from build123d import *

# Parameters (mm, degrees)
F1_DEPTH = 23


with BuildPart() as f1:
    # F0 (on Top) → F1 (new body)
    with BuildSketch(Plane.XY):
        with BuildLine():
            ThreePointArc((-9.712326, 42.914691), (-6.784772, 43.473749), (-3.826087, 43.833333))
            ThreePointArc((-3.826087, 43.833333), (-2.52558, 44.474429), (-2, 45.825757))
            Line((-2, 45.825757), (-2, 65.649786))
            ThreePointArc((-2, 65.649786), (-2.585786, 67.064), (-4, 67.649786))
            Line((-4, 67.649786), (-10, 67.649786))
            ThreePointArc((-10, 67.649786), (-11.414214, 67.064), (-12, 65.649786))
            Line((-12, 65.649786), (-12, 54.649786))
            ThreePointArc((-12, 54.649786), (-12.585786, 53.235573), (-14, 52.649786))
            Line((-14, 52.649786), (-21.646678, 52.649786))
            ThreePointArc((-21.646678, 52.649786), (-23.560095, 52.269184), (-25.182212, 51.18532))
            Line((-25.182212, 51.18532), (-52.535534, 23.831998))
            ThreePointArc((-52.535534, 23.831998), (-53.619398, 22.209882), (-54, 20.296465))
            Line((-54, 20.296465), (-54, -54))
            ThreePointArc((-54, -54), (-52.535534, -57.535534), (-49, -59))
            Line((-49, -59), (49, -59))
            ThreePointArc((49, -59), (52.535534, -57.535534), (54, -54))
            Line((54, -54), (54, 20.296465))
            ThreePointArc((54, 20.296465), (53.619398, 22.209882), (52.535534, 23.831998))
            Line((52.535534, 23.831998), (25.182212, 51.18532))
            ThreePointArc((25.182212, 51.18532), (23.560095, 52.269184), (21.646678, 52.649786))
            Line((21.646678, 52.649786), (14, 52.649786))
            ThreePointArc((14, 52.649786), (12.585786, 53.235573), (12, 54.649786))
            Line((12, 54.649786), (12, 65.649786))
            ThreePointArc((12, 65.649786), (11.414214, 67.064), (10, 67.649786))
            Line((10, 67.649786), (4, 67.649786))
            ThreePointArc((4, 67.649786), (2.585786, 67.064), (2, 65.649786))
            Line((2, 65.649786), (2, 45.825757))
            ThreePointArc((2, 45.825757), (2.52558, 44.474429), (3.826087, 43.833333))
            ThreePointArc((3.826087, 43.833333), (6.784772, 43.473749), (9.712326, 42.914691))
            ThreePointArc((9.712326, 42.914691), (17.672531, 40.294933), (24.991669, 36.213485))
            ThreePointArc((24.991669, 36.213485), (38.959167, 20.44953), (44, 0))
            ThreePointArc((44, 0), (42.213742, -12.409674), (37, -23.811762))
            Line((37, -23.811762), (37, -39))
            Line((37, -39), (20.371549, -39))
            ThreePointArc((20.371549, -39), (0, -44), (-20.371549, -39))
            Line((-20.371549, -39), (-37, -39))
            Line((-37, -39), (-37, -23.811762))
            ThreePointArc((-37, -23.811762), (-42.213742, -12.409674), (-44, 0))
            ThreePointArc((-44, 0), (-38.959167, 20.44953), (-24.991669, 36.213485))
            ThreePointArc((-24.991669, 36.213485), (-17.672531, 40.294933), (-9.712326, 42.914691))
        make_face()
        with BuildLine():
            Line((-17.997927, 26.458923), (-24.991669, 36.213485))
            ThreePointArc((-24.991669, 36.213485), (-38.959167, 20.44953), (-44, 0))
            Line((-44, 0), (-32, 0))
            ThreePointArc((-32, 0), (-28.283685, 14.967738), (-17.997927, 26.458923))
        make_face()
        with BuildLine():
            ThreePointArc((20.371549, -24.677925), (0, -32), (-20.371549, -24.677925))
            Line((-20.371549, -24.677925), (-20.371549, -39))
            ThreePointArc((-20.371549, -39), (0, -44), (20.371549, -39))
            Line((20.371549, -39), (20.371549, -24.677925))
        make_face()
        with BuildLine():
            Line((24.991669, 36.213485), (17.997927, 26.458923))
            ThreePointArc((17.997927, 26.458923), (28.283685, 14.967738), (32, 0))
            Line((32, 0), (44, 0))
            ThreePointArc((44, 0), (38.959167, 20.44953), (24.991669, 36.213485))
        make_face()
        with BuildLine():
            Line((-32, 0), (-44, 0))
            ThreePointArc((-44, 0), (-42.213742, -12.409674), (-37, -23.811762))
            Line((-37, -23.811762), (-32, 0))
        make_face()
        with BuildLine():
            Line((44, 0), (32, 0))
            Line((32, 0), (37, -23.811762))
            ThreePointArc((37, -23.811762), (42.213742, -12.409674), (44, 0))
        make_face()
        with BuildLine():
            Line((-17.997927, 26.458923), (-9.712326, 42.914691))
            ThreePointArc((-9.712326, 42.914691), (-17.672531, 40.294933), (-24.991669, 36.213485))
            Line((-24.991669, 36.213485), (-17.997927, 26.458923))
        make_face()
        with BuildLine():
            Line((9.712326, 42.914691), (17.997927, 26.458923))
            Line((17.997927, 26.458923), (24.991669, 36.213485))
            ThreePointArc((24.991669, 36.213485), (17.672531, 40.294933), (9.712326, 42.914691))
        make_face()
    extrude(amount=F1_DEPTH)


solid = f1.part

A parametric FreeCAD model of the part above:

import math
import FreeCAD as App
import Part
import Sketcher
from FreeCAD import Vector
Q = App.Units.Quantity

doc = App.newDocument("Part")
body = doc.addObject("PartDesign::Body", "Body")

# Sketch on XY plane
sketch1 = body.newObject("Sketcher::SketchObject", "Sketch")
sketch1.AttachmentSupport = (doc.getObject("XY_Plane"), [""])
sketch1.MapMode = "FlatFace"
sketch1.addGeometry(Part.ArcOfCircle(Part.Circle(Vector(0.000018, -0.00009, 0), Vector(0, 0, 1), 44.000092), math.radians(94.988555), math.radians(102.752185)), False)
sketch1.addGeometry(Part.ArcOfCircle(Part.Circle(Vector(-3.999998, 45.825756, 0), Vector(0, 0, 1), 1.999998), math.radians(-85.011501), math.radians(0.000036)), False)
sketch1.addGeometry(Part.LineSegment(Vector(-2, 45.825757, 0), Vector(-2, 65.649786, 0)), False)
sketch1.addGeometry(Part.ArcOfCircle(Part.Circle(Vector(-3.999999, 65.649787, 0), Vector(0, 0, 1), 1.999999), math.radians(-0.000043), math.radians(90.000043)), False)
sketch1.addGeometry(Part.LineSegment(Vector(-4, 67.649786, 0), Vector(-10, 67.649786, 0)), False)
sketch1.addGeometry(Part.ArcOfCircle(Part.Circle(Vector(-10.000001, 65.649787, 0), Vector(0, 0, 1), 1.999999), math.radians(89.999957), math.radians(180.000043)), False)
sketch1.addGeometry(Part.LineSegment(Vector(-12, 65.649786, 0), Vector(-12, 54.649786, 0)), False)
sketch1.addGeometry(Part.ArcOfCircle(Part.Circle(Vector(-14, 54.649786, 0), Vector(0, 0, 1), 2), math.radians(-89.999994), math.radians(-0.000006)), False)
sketch1.addGeometry(Part.LineSegment(Vector(-14, 52.649786, 0), Vector(-21.646678, 52.649786, 0)), False)
sketch1.addGeometry(Part.ArcOfCircle(Part.Circle(Vector(-21.646679, 47.649788, 0), Vector(0, 0, 1), 4.999998), math.radians(89.999988), math.radians(135.000009)), False)
sketch1.addGeometry(Part.LineSegment(Vector(-25.182212, 51.18532, 0), Vector(-52.535534, 23.831998, 0)), False)
sketch1.addGeometry(Part.ArcOfCircle(Part.Circle(Vector(-49.000007, 20.296467, 0), Vector(0, 0, 1), 4.999993), math.radians(134.999969), math.radians(180.000023)), False)
sketch1.addGeometry(Part.LineSegment(Vector(-54, 20.296465, 0), Vector(-54, -54, 0)), False)
sketch1.addGeometry(Part.ArcOfCircle(Part.Circle(Vector(-49, -54, 0), Vector(0, 0, 1), 5), math.radians(179.999996), math.radians(270.000004)), False)
sketch1.addGeometry(Part.LineSegment(Vector(-49, -59, 0), Vector(49, -59, 0)), False)
sketch1.addGeometry(Part.ArcOfCircle(Part.Circle(Vector(49, -54, 0), Vector(0, 0, 1), 5), math.radians(-90.000004), math.radians(0.000004)), False)
sketch1.addGeometry(Part.LineSegment(Vector(54, -54, 0), Vector(54, 20.296465, 0)), False)
sketch1.addGeometry(Part.ArcOfCircle(Part.Circle(Vector(49.000007, 20.296467, 0), Vector(0, 0, 1), 4.999993), math.radians(-0.000023), math.radians(45.000031)), False)
sketch1.addGeometry(Part.LineSegment(Vector(52.535534, 23.831998, 0), Vector(25.182212, 51.18532, 0)), False)
sketch1.addGeometry(Part.ArcOfCircle(Part.Circle(Vector(21.646679, 47.649788, 0), Vector(0, 0, 1), 4.999998), math.radians(44.999991), math.radians(90.000012)), False)
sketch1.addGeometry(Part.LineSegment(Vector(21.646678, 52.649786, 0), Vector(14, 52.649786, 0)), False)
sketch1.addGeometry(Part.ArcOfCircle(Part.Circle(Vector(14, 54.649786, 0), Vector(0, 0, 1), 2), math.radians(-179.999994), math.radians(-90.000006)), False)
sketch1.addGeometry(Part.LineSegment(Vector(12, 54.649786, 0), Vector(12, 65.649786, 0)), False)
sketch1.addGeometry(Part.ArcOfCircle(Part.Circle(Vector(10.000001, 65.649787, 0), Vector(0, 0, 1), 1.999999), math.radians(-0.000043), math.radians(90.000043)), False)
sketch1.addGeometry(Part.LineSegment(Vector(10, 67.649786, 0), Vector(4, 67.649786, 0)), False)
sketch1.addGeometry(Part.ArcOfCircle(Part.Circle(Vector(3.999999, 65.649787, 0), Vector(0, 0, 1), 1.999999), math.radians(89.999957), math.radians(180.000043)), False)
sketch1.addGeometry(Part.LineSegment(Vector(2, 65.649786, 0), Vector(2, 45.825757, 0)), False)
sketch1.addGeometry(Part.ArcOfCircle(Part.Circle(Vector(3.999998, 45.825756, 0), Vector(0, 0, 1), 1.999998), math.radians(179.999964), math.radians(265.011501)), False)
sketch1.addGeometry(Part.ArcOfCircle(Part.Circle(Vector(-0.000018, -0.00009, 0), Vector(0, 0, 1), 44.000092), math.radians(77.247815), math.radians(85.011445)), False)
sketch1.addGeometry(Part.LineSegment(Vector(9.712326, 42.914691, 0), Vector(17.997927, 26.458923, 0)), False)
sketch1.addGeometry(Part.ArcOfCircle(Part.Circle(Vector(0.000003, 0.000001, 0), Vector(0, 0, 1), 31.999997), math.radians(-0.000003), math.radians(55.775626)), False)
sketch1.addGeometry(Part.LineSegment(Vector(32, 0, 0), Vector(37, -23.811762, 0)), False)
sketch1.addGeometry(Part.LineSegment(Vector(37, -23.811762, 0), Vector(37, -39, 0)), False)
sketch1.addGeometry(Part.LineSegment(Vector(37, -39, 0), Vector(20.371549, -39, 0)), False)
sketch1.addGeometry(Part.LineSegment(Vector(20.371549, -39, 0), Vector(20.371549, -24.677925, 0)), False)
sketch1.addGeometry(Part.ArcOfCircle(Part.Circle(Vector(0, -0.000001, 0), Vector(0, 0, 1), 31.999999), math.radians(-129.539566), math.radians(-50.460434)), False)
sketch1.addGeometry(Part.LineSegment(Vector(-20.371549, -24.677925, 0), Vector(-20.371549, -39, 0)), False)
sketch1.addGeometry(Part.LineSegment(Vector(-20.371549, -39, 0), Vector(-37, -39, 0)), False)
sketch1.addGeometry(Part.LineSegment(Vector(-37, -39, 0), Vector(-37, -23.811762, 0)), False)
sketch1.addGeometry(Part.LineSegment(Vector(-37, -23.811762, 0), Vector(-32, 0, 0)), False)
sketch1.addGeometry(Part.ArcOfCircle(Part.Circle(Vector(-0.000003, 0.000001, 0), Vector(0, 0, 1), 31.999997), math.radians(124.224374), math.radians(180.000003)), False)
sketch1.addGeometry(Part.LineSegment(Vector(-17.997927, 26.458923, 0), Vector(-9.712326, 42.914691, 0)), False)
sketch1.addConstraint(Sketcher.Constraint("Coincident", 0, 1, 1, 1))
sketch1.addConstraint(Sketcher.Constraint("Coincident", 1, 2, 2, 1))
sketch1.addConstraint(Sketcher.Constraint("Coincident", 2, 2, 3, 1))
sketch1.addConstraint(Sketcher.Constraint("Coincident", 3, 2, 4, 1))
sketch1.addConstraint(Sketcher.Constraint("Coincident", 4, 2, 5, 1))
sketch1.addConstraint(Sketcher.Constraint("Coincident", 5, 2, 6, 1))
sketch1.addConstraint(Sketcher.Constraint("Coincident", 6, 2, 7, 2))
sketch1.addConstraint(Sketcher.Constraint("Coincident", 7, 1, 8, 1))
sketch1.addConstraint(Sketcher.Constraint("Coincident", 8, 2, 9, 1))
sketch1.addConstraint(Sketcher.Constraint("Coincident", 9, 2, 10, 1))
sketch1.addConstraint(Sketcher.Constraint("Coincident", 10, 2, 11, 1))
sketch1.addConstraint(Sketcher.Constraint("Coincident", 11, 2, 12, 1))
sketch1.addConstraint(Sketcher.Constraint("Coincident", 12, 2, 13, 1))
sketch1.addConstraint(Sketcher.Constraint("Coincident", 13, 2, 14, 1))
sketch1.addConstraint(Sketcher.Constraint("Coincident", 14, 2, 15, 1))
sketch1.addConstraint(Sketcher.Constraint("Coincident", 15, 2, 16, 1))
sketch1.addConstraint(Sketcher.Constraint("Coincident", 16, 2, 17, 1))
sketch1.addConstraint(Sketcher.Constraint("Coincident", 17, 2, 18, 1))
sketch1.addConstraint(Sketcher.Constraint("Coincident", 18, 2, 19, 1))
sketch1.addConstraint(Sketcher.Constraint("Coincident", 19, 2, 20, 1))
sketch1.addConstraint(Sketcher.Constraint("Coincident", 20, 2, 21, 2))
sketch1.addConstraint(Sketcher.Constraint("Coincident", 21, 1, 22, 1))
sketch1.addConstraint(Sketcher.Constraint("Coincident", 22, 2, 23, 1))
sketch1.addConstraint(Sketcher.Constraint("Coincident", 23, 2, 24, 1))
sketch1.addConstraint(Sketcher.Constraint("Coincident", 24, 2, 25, 1))
sketch1.addConstraint(Sketcher.Constraint("Coincident", 25, 2, 26, 1))
sketch1.addConstraint(Sketcher.Constraint("Coincident", 26, 2, 27, 1))
sketch1.addConstraint(Sketcher.Constraint("Coincident", 27, 2, 28, 2))
sketch1.addConstraint(Sketcher.Constraint("Coincident", 28, 1, 29, 1))
sketch1.addConstraint(Sketcher.Constraint("Coincident", 29, 2, 30, 2))
sketch1.addConstraint(Sketcher.Constraint("Coincident", 30, 1, 31, 1))
sketch1.addConstraint(Sketcher.Constraint("Coincident", 31, 2, 32, 1))
sketch1.addConstraint(Sketcher.Constraint("Coincident", 32, 2, 33, 1))
sketch1.addConstraint(Sketcher.Constraint("Coincident", 33, 2, 34, 1))
sketch1.addConstraint(Sketcher.Constraint("Coincident", 34, 2, 35, 2))
sketch1.addConstraint(Sketcher.Constraint("Coincident", 35, 1, 36, 1))
sketch1.addConstraint(Sketcher.Constraint("Coincident", 36, 2, 37, 1))
sketch1.addConstraint(Sketcher.Constraint("Coincident", 37, 2, 38, 1))
sketch1.addConstraint(Sketcher.Constraint("Coincident", 38, 2, 39, 1))
sketch1.addConstraint(Sketcher.Constraint("Coincident", 39, 2, 40, 2))
sketch1.addConstraint(Sketcher.Constraint("Coincident", 40, 1, 41, 1))
sketch1.addConstraint(Sketcher.Constraint("Coincident", 41, 2, 0, 2))
sketch1.addConstraint(Sketcher.Constraint("Vertical", 2))
sketch1.addConstraint(Sketcher.Constraint("Horizontal", 4))
sketch1.addConstraint(Sketcher.Constraint("Vertical", 6))
sketch1.addConstraint(Sketcher.Constraint("Horizontal", 8))
sketch1.addConstraint(Sketcher.Constraint("Vertical", 12))
sketch1.addConstraint(Sketcher.Constraint("Horizontal", 14))
sketch1.addConstraint(Sketcher.Constraint("Vertical", 16))
sketch1.addConstraint(Sketcher.Constraint("Horizontal", 20))
sketch1.addConstraint(Sketcher.Constraint("Vertical", 22))
sketch1.addConstraint(Sketcher.Constraint("Horizontal", 24))
sketch1.addConstraint(Sketcher.Constraint("Vertical", 26))
sketch1.addConstraint(Sketcher.Constraint("Vertical", 32))
sketch1.addConstraint(Sketcher.Constraint("Horizontal", 33))
sketch1.addConstraint(Sketcher.Constraint("Vertical", 34))
sketch1.addConstraint(Sketcher.Constraint("Vertical", 36))
sketch1.addConstraint(Sketcher.Constraint("Horizontal", 37))
sketch1.addConstraint(Sketcher.Constraint("Vertical", 38))
sketch1.addConstraint(Sketcher.Constraint("Coincident", 30, 3, -1, 1))
sketch1.addConstraint(Sketcher.Constraint("Coincident", 35, 3, -1, 1))
sketch1.addConstraint(Sketcher.Constraint("Coincident", 40, 3, -1, 1))
sketch1.addConstraint(Sketcher.Constraint("PointOnObject", 30, 1, -1))
sketch1.addConstraint(Sketcher.Constraint("PointOnObject", 39, 2, -1))
sketch1.addConstraint(Sketcher.Constraint("Radius", 1, Q("1.999998 mm")))
sketch1.addConstraint(Sketcher.Constraint("Radius", 3, Q("1.999999 mm")))
sketch1.addConstraint(Sketcher.Constraint("Radius", 5, Q("1.999999 mm")))
sketch1.addConstraint(Sketcher.Constraint("Radius", 7, Q("2 mm")))
sketch1.addConstraint(Sketcher.Constraint("Radius", 13, Q("5 mm")))
sketch1.addConstraint(Sketcher.Constraint("Radius", 15, Q("5 mm")))
sketch1.addConstraint(Sketcher.Constraint("Radius", 21, Q("2 mm")))
sketch1.addConstraint(Sketcher.Constraint("Radius", 23, Q("1.999999 mm")))
sketch1.addConstraint(Sketcher.Constraint("Radius", 25, Q("1.999999 mm")))
sketch1.addConstraint(Sketcher.Constraint("Radius", 27, Q("1.999998 mm")))
sketch1.addConstraint(Sketcher.Constraint("Radius", 35, Q("31.999999 mm")))
sketch1.addConstraint(Sketcher.Constraint("DistanceX", 4, 2, 4, 1, Q("6 mm")))
sketch1.addConstraint(Sketcher.Constraint("DistanceX", 14, 1, 14, 2, Q("98 mm")))
sketch1.addConstraint(Sketcher.Constraint("DistanceX", 24, 2, 24, 1, Q("6 mm")))
sketch1.addConstraint(Sketcher.Constraint("DistanceY", 6, 2, 6, 1, Q("11 mm")))
sketch1.addConstraint(Sketcher.Constraint("DistanceY", 22, 1, 22, 2, Q("11 mm")))
sketch1.addConstraint(Sketcher.Constraint("DistanceX", 1, 3, -1, 1, Q("3.999998 mm")))
sketch1.addConstraint(Sketcher.Constraint("DistanceX", 5, 3, -1, 1, Q("10.000001 mm")))
sketch1.addConstraint(Sketcher.Constraint("DistanceX", 13, 3, -1, 1, Q("49 mm")))
sketch1.addConstraint(Sketcher.Constraint("DistanceY", 13, 3, -1, 1, Q("54 mm")))
sketch1.addConstraint(Sketcher.Constraint("DistanceX", -1, 1, 15, 3, Q("49 mm")))
sketch1.addConstraint(Sketcher.Constraint("DistanceX", -1, 1, 21, 3, Q("14 mm")))
sketch1.addConstraint(Sketcher.Constraint("DistanceX", -1, 1, 25, 3, Q("3.999999 mm")))
sketch1.addConstraint(Sketcher.Constraint("DistanceX", 3, 2, -1, 1, Q("4 mm")))
sketch1.addConstraint(Sketcher.Constraint("DistanceX", 7, 1, -1, 1, Q("14 mm")))
sketch1.addConstraint(Sketcher.Constraint("DistanceY", 12, 2, -1, 1, Q("54 mm")))
sketch1.addConstraint(Sketcher.Constraint("DistanceX", 13, 2, -1, 1, Q("49 mm")))
sketch1.addConstraint(Sketcher.Constraint("DistanceY", 15, 2, -1, 1, Q("54 mm")))
sketch1.addConstraint(Sketcher.Constraint("DistanceX", -1, 1, 20, 2, Q("14 mm")))
sketch1.addConstraint(Sketcher.Constraint("DistanceX", -1, 1, 23, 2, Q("10 mm")))
sketch1.addConstraint(Sketcher.Constraint("DistanceX", -1, 1, 30, 1, Q("32 mm")))
sketch1.addConstraint(Sketcher.Constraint("DistanceX", -1, 1, 31, 2, Q("37 mm")))
sketch1.addConstraint(Sketcher.Constraint("DistanceY", 32, 2, -1, 1, Q("39 mm")))
sketch1.addConstraint(Sketcher.Constraint("DistanceY", 36, 2, -1, 1, Q("39 mm")))
sketch1.addConstraint(Sketcher.Constraint("DistanceX", 37, 2, -1, 1, Q("37 mm")))
sketch1.addConstraint(Sketcher.Constraint("DistanceX", 39, 2, -1, 1, Q("32 mm")))
sketch1.addConstraint(Sketcher.Constraint("Radius", 0, Q("44.000092 mm")))
sketch1.addConstraint(Sketcher.Constraint("Radius", 28, Q("44.000092 mm")))
sketch1.addConstraint(Sketcher.Constraint("Radius", 9, Q("4.999998 mm")))
sketch1.addConstraint(Sketcher.Constraint("Radius", 11, Q("4.999993 mm")))
sketch1.addConstraint(Sketcher.Constraint("Radius", 17, Q("4.999993 mm")))
sketch1.addConstraint(Sketcher.Constraint("Radius", 19, Q("4.999998 mm")))
sketch1.addConstraint(Sketcher.Constraint("DistanceX", 8, 2, 8, 1, Q("7.646678 mm")))
sketch1.addConstraint(Sketcher.Constraint("DistanceX", 20, 2, 20, 1, Q("7.646678 mm")))
sketch1.addConstraint(Sketcher.Constraint("DistanceX", 33, 2, 33, 1, Q("16.628451 mm")))
sketch1.addConstraint(Sketcher.Constraint("DistanceX", 37, 2, 37, 1, Q("16.628451 mm")))
sketch1.addConstraint(Sketcher.Constraint("DistanceY", 2, 1, 2, 2, Q("19.824029 mm")))
sketch1.addConstraint(Sketcher.Constraint("DistanceY", 26, 2, 26, 1, Q("19.824029 mm")))
sketch1.addConstraint(Sketcher.Constraint("Distance", 10, Q("38.683439 mm")))
sketch1.addConstraint(Sketcher.Constraint("Distance", 18, Q("38.683439 mm")))
sketch1.addConstraint(Sketcher.Constraint("Distance", 31, Q("24.33105 mm")))
sketch1.addConstraint(Sketcher.Constraint("Distance", 39, Q("24.33105 mm")))
sketch1.addConstraint(Sketcher.Constraint("DistanceY", 12, 2, 12, 1, Q("74.296465 mm")))
sketch1.addConstraint(Sketcher.Constraint("DistanceY", 16, 1, 16, 2, Q("74.296465 mm")))
sketch1.addConstraint(Sketcher.Constraint("DistanceX", 9, 3, -1, 1, Q("21.646679 mm")))
sketch1.addConstraint(Sketcher.Constraint("DistanceY", -1, 1, 9, 3, Q("47.649788 mm")))
sketch1.addConstraint(Sketcher.Constraint("DistanceX", -1, 1, 19, 3, Q("21.646679 mm")))
sketch1.addConstraint(Sketcher.Constraint("DistanceY", -1, 1, 19, 3, Q("47.649788 mm")))
sketch1.addConstraint(Sketcher.Constraint("DistanceX", 9, 2, -1, 1, Q("25.182212 mm")))
sketch1.addConstraint(Sketcher.Constraint("DistanceX", -1, 1, 18, 2, Q("25.182212 mm")))
sketch1.addConstraint(Sketcher.Constraint("DistanceY", -1, 1, 28, 1, Q("42.914691 mm")))
sketch1.addConstraint(Sketcher.Constraint("DistanceY", -1, 1, 41, 2, Q("42.914691 mm")))
sketch1.addConstraint(Sketcher.Constraint("Distance", 29, Q("18.423992 mm")))
sketch1.addConstraint(Sketcher.Constraint("Distance", 41, Q("18.423992 mm")))
sketch1.addConstraint(Sketcher.Constraint("DistanceY", -1, 1, 1, 3, Q("45.825756 mm")))
sketch1.addConstraint(Sketcher.Constraint("DistanceY", -1, 1, 3, 3, Q("65.649787 mm")))
sketch1.addConstraint(Sketcher.Constraint("DistanceY", -1, 1, 11, 3, Q("20.296467 mm")))
sketch1.addConstraint(Sketcher.Constraint("DistanceY", -1, 1, 17, 3, Q("20.296467 mm")))
sketch1.addConstraint(Sketcher.Constraint("DistanceY", -1, 1, 23, 3, Q("65.649787 mm")))
sketch1.addConstraint(Sketcher.Constraint("DistanceY", -1, 1, 27, 3, Q("45.825756 mm")))
sketch1.addConstraint(Sketcher.Constraint("DistanceX", 0, 1, -1, 1, Q("3.826087 mm")))
sketch1.addConstraint(Sketcher.Constraint("DistanceY", -1, 1, 1, 2, Q("45.825757 mm")))
sketch1.addConstraint(Sketcher.Constraint("DistanceY", -1, 1, 5, 2, Q("65.649786 mm")))
sketch1.addConstraint(Sketcher.Constraint("DistanceY", -1, 1, 21, 1, Q("54.649786 mm")))
sketch1.addConstraint(Sketcher.Constraint("DistanceY", -1, 1, 25, 2, Q("65.649786 mm")))
sketch1.addConstraint(Sketcher.Constraint("DistanceX", -1, 1, 27, 2, Q("3.826087 mm")))
sketch1.addConstraint(Sketcher.Constraint("DistanceX", -1, 1, 28, 1, Q("9.712326 mm")))
sketch1.addConstraint(Sketcher.Constraint("DistanceX", 40, 1, -1, 1, Q("17.997927 mm")))
pad1 = body.newObject("PartDesign::Pad", "Pad")
pad1.Profile = sketch1
pad1.Length = 23

doc.recompute()
